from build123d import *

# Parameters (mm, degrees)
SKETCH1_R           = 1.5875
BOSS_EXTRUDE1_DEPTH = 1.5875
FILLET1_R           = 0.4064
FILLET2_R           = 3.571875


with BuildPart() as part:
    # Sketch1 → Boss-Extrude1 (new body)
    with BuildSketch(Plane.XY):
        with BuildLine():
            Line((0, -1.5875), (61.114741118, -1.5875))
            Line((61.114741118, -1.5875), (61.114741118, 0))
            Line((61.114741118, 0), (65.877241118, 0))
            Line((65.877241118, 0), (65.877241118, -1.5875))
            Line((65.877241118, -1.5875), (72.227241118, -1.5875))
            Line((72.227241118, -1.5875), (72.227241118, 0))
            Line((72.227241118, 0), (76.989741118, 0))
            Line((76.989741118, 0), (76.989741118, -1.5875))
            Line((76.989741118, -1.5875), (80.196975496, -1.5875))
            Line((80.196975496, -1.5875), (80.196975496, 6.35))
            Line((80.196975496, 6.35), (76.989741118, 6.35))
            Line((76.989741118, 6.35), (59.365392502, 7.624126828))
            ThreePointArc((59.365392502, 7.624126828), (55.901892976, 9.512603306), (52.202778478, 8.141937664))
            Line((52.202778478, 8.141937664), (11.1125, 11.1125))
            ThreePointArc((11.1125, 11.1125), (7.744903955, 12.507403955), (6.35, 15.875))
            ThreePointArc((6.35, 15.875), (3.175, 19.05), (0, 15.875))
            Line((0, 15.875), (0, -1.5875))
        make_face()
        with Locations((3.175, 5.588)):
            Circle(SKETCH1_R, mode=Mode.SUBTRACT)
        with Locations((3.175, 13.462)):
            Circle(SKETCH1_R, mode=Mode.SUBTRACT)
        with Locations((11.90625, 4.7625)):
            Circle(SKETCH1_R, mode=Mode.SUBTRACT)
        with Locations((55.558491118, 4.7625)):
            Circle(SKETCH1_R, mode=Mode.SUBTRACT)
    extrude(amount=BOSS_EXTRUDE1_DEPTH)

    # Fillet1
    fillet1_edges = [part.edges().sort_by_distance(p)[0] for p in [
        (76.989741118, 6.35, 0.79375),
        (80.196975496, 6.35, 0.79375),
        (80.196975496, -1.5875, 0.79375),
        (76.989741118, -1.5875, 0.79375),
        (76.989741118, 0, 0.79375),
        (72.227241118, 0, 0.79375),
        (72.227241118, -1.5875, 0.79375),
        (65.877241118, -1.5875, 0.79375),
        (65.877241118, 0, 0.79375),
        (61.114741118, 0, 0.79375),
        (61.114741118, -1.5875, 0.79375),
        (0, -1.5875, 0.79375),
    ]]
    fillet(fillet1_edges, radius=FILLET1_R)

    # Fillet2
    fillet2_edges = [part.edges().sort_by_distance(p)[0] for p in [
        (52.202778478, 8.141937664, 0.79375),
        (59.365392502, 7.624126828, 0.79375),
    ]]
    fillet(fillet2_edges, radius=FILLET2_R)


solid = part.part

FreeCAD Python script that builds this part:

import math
import FreeCAD as App
import Part
import Sketcher
from FreeCAD import Vector
Q = App.Units.Quantity


def edges_at(feature, points):
    """Names of the edges that pass closest to the given points."""
    edges = feature.Shape.Edges
    near = lambda p: min(range(len(edges)), key=lambda i: edges[i].distToShape(Part.Vertex(*p))[0])
    return sorted({f"Edge{near(p) + 1}" for p in points})

doc = App.newDocument("Part")
body = doc.addObject("PartDesign::Body", "Body")

# Sketch on XY plane
sketch1 = doc.addObject("Sketcher::SketchObject", "Sketch")
body.addObject(sketch1)
sketch1.AttachmentSupport = (doc.XY_Plane, [""])
sketch1.MapMode = "FlatFace"
sketch1.addGeometry(Part.LineSegment(Vector(0, -1.5875, 0), Vector(61.114741, -1.5875, 0)), False)
sketch1.addGeometry(Part.LineSegment(Vector(61.114741, -1.5875, 0), Vector(61.114741, 0, 0)), False)
sketch1.addGeometry(Part.LineSegment(Vector(61.114741, 0, 0), Vector(65.877241, 0, 0)), False)
sketch1.addGeometry(Part.LineSegment(Vector(65.877241, 0, 0), Vector(65.877241, -1.5875, 0)), False)
sketch1.addGeometry(Part.LineSegment(Vector(65.877241, -1.5875, 0), Vector(72.227241, -1.5875, 0)), False)
sketch1.addGeometry(Part.LineSegment(Vector(72.227241, -1.5875, 0), Vector(72.227241, 0, 0)), False)
sketch1.addGeometry(Part.LineSegment(Vector(72.227241, 0, 0), Vector(76.989741, 0, 0)), False)
sketch1.addGeometry(Part.LineSegment(Vector(76.989741, 0, 0), Vector(76.989741, -1.5875, 0)), False)
sketch1.addGeometry(Part.LineSegment(Vector(76.989741, -1.5875, 0), Vector(80.196975, -1.5875, 0)), False)
sketch1.addGeometry(Part.LineSegment(Vector(80.196975, -1.5875, 0), Vector(80.196975, 6.35, 0)), False)
sketch1.addGeometry(Part.LineSegment(Vector(80.196975, 6.35, 0), Vector(76.989741, 6.35, 0)), False)
sketch1.addGeometry(Part.LineSegment(Vector(76.989741, 6.35, 0), Vector(59.365393, 7.624127, 0)), False)
sketch1.addGeometry(Part.ArcOfCircle(Part.Circle(Vector(55.558491, 4.7625, 0), Vector(0, 0, 1), 4.7625), math.radians(36.931983), math.radians(134.798173)), False)
sketch1.addGeometry(Part.LineSegment(Vector(52.202778, 8.141938, 0), Vector(11.1125, 11.1125, 0)), False)
sketch1.addGeometry(Part.ArcOfCircle(Part.Circle(Vector(11.1125, 15.875, 0), Vector(0, 0, 1), 4.7625), math.radians(-180), math.radians(-90)), False)
sketch1.addGeometry(Part.ArcOfCircle(Part.Circle(Vector(3.175, 15.875, 0), Vector(0, 0, 1), 3.175), math.radians(0), math.radians(180)), False)
sketch1.addGeometry(Part.LineSegment(Vector(0, 15.875, 0), Vector(0, -1.5875, 0)), False)
sketch1.addGeometry(Part.Circle(Vector(3.175, 5.588, 0), Vector(0, 0, 1), 1.5875), False)
sketch1.addGeometry(Part.Circle(Vector(11.90625, 4.7625, 0), Vector(0, 0, 1), 1.5875), False)
sketch1.addGeometry(Part.Circle(Vector(55.558491, 4.7625, 0), Vector(0, 0, 1), 1.5875), False)
sketch1.addGeometry(Part.Circle(Vector(3.175, 13.462, 0), Vector(0, 0, 1), 1.5875), False)
sketch1.addConstraint(Sketcher.Constraint("Coincident", 0, 2, 1, 1))
sketch1.addConstraint(Sketcher.Constraint("Coincident", 1, 2, 2, 1))
sketch1.addConstraint(Sketcher.Constraint("Coincident", 2, 2, 3, 1))
sketch1.addConstraint(Sketcher.Constraint("Coincident", 3, 2, 4, 1))
sketch1.addConstraint(Sketcher.Constraint("Coincident", 4, 2, 5, 1))
sketch1.addConstraint(Sketcher.Constraint("Coincident", 5, 2, 6, 1))
sketch1.addConstraint(Sketcher.Constraint("Coincident", 6, 2, 7, 1))
sketch1.addConstraint(Sketcher.Constraint("Coincident", 7, 2, 8, 1))
sketch1.addConstraint(Sketcher.Constraint("Coincident", 8, 2, 9, 1))
sketch1.addConstraint(Sketcher.Constraint("Coincident", 9, 2, 10, 1))
sketch1.addConstraint(Sketcher.Constraint("Coincident", 10, 2, 11, 1))
sketch1.addConstraint(Sketcher.Constraint("Coincident", 11, 2, 12, 1))
sketch1.addConstraint(Sketcher.Constraint("Coincident", 12, 2, 13, 1))
sketch1.addConstraint(Sketcher.Constraint("Coincident", 13, 2, 14, 2))
sketch1.addConstraint(Sketcher.Constraint("Tangent", 14, 1, 15, 1))
sketch1.addConstraint(Sketcher.Constraint("Tangent", 15, 2, 16, 1))
sketch1.addConstraint(Sketcher.Constraint("Coincident", 16, 2, 0, 1))
sketch1.addConstraint(Sketcher.Constraint("Horizontal", 0))
sketch1.addConstraint(Sketcher.Constraint("Vertical", 1))
sketch1.addConstraint(Sketcher.Constraint("Horizontal", 2))
sketch1.addConstraint(Sketcher.Constraint("Vertical", 3))
sketch1.addConstraint(Sketcher.Constraint("Horizontal", 4))
sketch1.addConstraint(Sketcher.Constraint("Vertical", 5))
sketch1.addConstraint(Sketcher.Constraint("Horizontal", 6))
sketch1.addConstraint(Sketcher.Constraint("Vertical", 7))
sketch1.addConstraint(Sketcher.Constraint("Horizontal", 8))
sketch1.addConstraint(Sketcher.Constraint("Vertical", 9))
sketch1.addConstraint(Sketcher.Constraint("Horizontal", 10))
sketch1.addConstraint(Sketcher.Constraint("Vertical", 16))
sketch1.addConstraint(Sketcher.Constraint("Coincident", 19, 3, 12, 3))
sketch1.addConstraint(Sketcher.Constraint("Equal", 12, 14))
sketch1.addConstraint(Sketcher.Constraint("Equal", 17, 18))
sketch1.addConstraint(Sketcher.Constraint("Equal", 18, 19))
sketch1.addConstraint(Sketcher.Constraint("Equal", 19, 20))
sketch1.addConstraint(Sketcher.Constraint("PointOnObject", 1, 2, -1))
sketch1.addConstraint(Sketcher.Constraint("PointOnObject", 5, 2, -1))
sketch1.addConstraint(Sketcher.Constraint("PointOnObject", 15, 2, -2))
sketch1.addConstraint(Sketcher.Constraint("Parallel", 11, 13))
sketch1.addConstraint(Sketcher.Constraint("Horizontal", 14, 3, 15, 3))
sketch1.addConstraint(Sketcher.Constraint("Horizontal", 12, 3, 18, 3))
sketch1.addConstraint(Sketcher.Constraint("Horizontal", 0, 2, 3, 2))
sketch1.addConstraint(Sketcher.Constraint("Horizontal", 4, 2, 7, 2))
sketch1.addConstraint(Sketcher.Constraint("Vertical", 15, 3, 17, 3))
sketch1.addConstraint(Sketcher.Constraint("Vertical", 17, 3, 20, 3))
sketch1.addConstraint(Sketcher.Constraint("Vertical", 7, 2, 10, 2))
sketch1.addConstraint(Sketcher.Constraint("Vertical", 14, 3, 13, 2))
sketch1.addConstraint(Sketcher.Constraint("Equal", 2, 6))
sketch1.addConstraint(Sketcher.Constraint("Diameter", 17, Q("0.125 in")))
sketch1.addConstraint(Sketcher.Constraint("Radius", 12, Q("0.1875 in")))
sketch1.addConstraint(Sketcher.Constraint("Radius", 15, Q("0.125 in")))
sketch1.addConstraint(Sketcher.Constraint("DistanceX", 4, 1, 4, 2, Q("0.25 in")))
sketch1.addConstraint(Sketcher.Constraint("DistanceY", 16, 2, 13, 2, Q("0.5 in")))
sketch1.addConstraint(Sketcher.Constraint("DistanceX", 2, 1, 2, 2, Q("0.1875 in")))
sketch1.addConstraint(Sketcher.Constraint("DistanceY", 1, 1, 1, 2, Q("0.0625 in")))
sketch1.addConstraint(Sketcher.Constraint("DistanceY", 9, 1, 9, 2, Q("0.3125 in")))
sketch1.addConstraint(Sketcher.Constraint("DistanceY", -1, 1, 17, 3, Q("0.22 in")))
sketch1.addConstraint(Sketcher.Constraint("DistanceY", -1, 1, 20, 3, Q("0.53 in")))
sketch1.addConstraint(Sketcher.Constraint("DistanceY", 0, 2, 19, 3, Q("0.25 in")))
sketch1.addConstraint(Sketcher.Constraint("DistanceX", -1, 1, 18, 3, Q("0.46875 in")))
sketch1.addConstraint(Sketcher.Constraint("DistanceX", 19, 3, 0, 2, Q("0.21875 in")))
sketch1.addConstraint(Sketcher.Constraint("DistanceX", 0, 1, 0, 2, Q("61.114741 mm")))
sketch1.addConstraint(Sketcher.Constraint("DistanceX", 12, 3, 11, 2, Q("3.806901 mm")))
sketch1.addConstraint(Sketcher.Constraint("DistanceX", 8, 1, 8, 2, Q("3.207234 mm")))
pad1 = doc.addObject("PartDesign::Pad", "Pad")
body.addObject(pad1)
pad1.Profile = sketch1
pad1.Length = Q("0.0625 in")
doc.recompute()

fillet = doc.addObject("PartDesign::Fillet", "Fillet")
body.addObject(fillet)
fillet.Base = (pad1, edges_at(pad1, [
    (76.99, 6.35, 0.794),
    (80.197, 6.35, 0.794),
    (80.197, -1.587, 0.794),
    (76.99, -1.587, 0.794),
    (76.99, 0, 0.794),
    (72.227, 0, 0.794),
    (72.227, -1.587, 0.794),
    (65.877, -1.587, 0.794),
    (65.877, 0, 0.794),
    (61.115, 0, 0.794),
    (61.115, -1.587, 0.794),
    (0, -1.587, 0.794),
]))
fillet.Radius = Q("0.016 in")
doc.recompute()

fillet2 = doc.addObject("PartDesign::Fillet", "Fillet001")
body.addObject(fillet2)
fillet2.Base = (fillet, edges_at(fillet, [(52.203, 8.142, 0.794), (59.365, 7.624, 0.794)]))
fillet2.Radius = Q("0.140625 in")

doc.recompute()
